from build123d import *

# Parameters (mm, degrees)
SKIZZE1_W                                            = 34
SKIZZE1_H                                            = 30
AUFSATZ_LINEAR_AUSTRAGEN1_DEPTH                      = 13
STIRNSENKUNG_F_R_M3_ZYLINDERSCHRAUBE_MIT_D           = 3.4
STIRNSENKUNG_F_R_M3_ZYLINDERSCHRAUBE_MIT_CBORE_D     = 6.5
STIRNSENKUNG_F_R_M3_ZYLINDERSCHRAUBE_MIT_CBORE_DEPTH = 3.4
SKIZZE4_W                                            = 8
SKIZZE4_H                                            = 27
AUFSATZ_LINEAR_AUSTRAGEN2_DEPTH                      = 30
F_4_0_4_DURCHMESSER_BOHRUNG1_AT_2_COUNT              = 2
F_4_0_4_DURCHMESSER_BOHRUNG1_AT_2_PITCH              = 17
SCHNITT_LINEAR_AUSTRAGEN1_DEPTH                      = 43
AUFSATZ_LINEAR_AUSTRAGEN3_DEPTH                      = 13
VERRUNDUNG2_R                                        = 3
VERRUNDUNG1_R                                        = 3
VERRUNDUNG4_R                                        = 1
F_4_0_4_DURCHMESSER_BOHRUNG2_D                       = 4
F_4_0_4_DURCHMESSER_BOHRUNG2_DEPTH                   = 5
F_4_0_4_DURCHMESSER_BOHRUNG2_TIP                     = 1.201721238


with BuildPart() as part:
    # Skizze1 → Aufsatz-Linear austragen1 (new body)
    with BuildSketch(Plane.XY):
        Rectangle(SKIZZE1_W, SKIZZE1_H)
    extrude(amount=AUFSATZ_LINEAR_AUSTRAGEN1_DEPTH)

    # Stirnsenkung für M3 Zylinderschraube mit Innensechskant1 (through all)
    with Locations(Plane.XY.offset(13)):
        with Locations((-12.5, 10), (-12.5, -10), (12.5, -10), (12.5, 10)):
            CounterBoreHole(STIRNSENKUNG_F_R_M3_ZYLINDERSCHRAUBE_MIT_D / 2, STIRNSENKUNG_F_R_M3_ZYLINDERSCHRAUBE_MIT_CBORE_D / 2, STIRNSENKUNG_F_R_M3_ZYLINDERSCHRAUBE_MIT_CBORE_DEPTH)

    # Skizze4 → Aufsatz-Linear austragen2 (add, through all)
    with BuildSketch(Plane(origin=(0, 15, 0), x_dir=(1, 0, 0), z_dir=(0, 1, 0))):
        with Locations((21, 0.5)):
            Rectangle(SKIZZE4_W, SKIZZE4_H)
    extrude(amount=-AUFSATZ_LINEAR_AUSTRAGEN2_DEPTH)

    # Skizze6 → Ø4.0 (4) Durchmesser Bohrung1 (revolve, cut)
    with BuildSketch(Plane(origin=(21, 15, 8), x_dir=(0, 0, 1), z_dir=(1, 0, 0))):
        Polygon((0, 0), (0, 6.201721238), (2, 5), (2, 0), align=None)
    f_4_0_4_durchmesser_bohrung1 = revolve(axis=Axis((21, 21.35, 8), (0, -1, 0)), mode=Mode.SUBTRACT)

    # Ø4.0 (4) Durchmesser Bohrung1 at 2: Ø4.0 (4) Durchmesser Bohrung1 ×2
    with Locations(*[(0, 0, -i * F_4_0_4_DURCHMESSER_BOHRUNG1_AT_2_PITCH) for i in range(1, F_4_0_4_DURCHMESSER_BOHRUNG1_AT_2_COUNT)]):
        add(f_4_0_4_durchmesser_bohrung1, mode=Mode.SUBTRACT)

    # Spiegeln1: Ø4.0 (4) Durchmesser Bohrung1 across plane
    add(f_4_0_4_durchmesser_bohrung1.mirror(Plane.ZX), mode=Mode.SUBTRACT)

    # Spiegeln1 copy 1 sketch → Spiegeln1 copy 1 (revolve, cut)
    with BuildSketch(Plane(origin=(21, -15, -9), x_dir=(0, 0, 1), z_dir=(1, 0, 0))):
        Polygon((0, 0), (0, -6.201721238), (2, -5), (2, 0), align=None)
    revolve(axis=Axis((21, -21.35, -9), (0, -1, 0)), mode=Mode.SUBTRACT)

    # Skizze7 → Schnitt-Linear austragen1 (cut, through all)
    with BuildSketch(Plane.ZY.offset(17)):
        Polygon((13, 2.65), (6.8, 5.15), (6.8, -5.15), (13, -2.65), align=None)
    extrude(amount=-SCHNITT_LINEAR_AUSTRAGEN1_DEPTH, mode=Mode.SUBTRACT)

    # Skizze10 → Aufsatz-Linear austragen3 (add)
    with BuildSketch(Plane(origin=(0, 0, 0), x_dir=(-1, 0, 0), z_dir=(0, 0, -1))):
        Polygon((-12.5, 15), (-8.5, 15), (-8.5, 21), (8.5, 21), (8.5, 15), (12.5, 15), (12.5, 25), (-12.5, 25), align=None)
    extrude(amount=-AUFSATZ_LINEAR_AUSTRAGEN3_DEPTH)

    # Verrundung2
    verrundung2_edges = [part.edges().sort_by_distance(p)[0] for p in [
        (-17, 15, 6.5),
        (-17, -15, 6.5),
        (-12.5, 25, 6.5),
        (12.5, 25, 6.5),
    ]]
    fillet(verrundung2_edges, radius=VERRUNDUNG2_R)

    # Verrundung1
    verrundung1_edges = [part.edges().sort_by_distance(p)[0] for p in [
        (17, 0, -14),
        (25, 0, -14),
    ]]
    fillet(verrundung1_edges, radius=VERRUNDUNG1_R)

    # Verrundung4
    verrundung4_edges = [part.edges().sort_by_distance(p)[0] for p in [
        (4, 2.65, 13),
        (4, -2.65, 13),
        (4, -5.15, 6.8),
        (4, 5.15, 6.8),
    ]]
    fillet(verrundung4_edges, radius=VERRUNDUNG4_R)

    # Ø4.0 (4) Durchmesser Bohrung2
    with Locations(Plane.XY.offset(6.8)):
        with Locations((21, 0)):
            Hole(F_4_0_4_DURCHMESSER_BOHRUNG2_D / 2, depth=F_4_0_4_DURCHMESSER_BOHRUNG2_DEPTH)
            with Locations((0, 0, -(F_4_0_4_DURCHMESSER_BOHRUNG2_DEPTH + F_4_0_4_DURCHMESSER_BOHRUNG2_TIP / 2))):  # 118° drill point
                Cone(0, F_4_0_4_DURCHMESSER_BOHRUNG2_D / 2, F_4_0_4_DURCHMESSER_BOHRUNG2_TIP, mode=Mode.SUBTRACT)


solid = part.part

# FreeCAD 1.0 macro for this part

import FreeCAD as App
import Part
import Sketcher
Q = App.Units.Quantity


def edges_at(feature, points):
    """Names of the edges that pass closest to the given points."""
    edges = feature.Shape.Edges
    near = lambda p: min(range(len(edges)), key=lambda i: edges[i].distToShape(Part.Vertex(*p))[0])
    return sorted({f"Edge{near(p) + 1}" for p in points})

doc = App.newDocument("Part")
params = doc.addObject("Spreadsheet::Sheet", "Params")
for row, (alias, value) in enumerate([
    ("sketch1_width", "34 mm"),
    ("sketch1_height", "30 mm"),
    ("pad1_length", "13 mm"),
    ("sketch2_diameter", "3.4 mm"),
    ("hole_diameter", "3.4 mm"),
    ("hole_cbore_diameter", "6.5 mm"),
    ("hole_cbore_depth", "3.4 mm"),
    ("sketch3_width", "8 mm"),
    ("sketch3_height", "27 mm"),
    ("pad2_length", "30 mm"),
    ("sketch4_width", "5 mm"),
    ("sketch4_height", "2 mm"),
    ("groove_angle", "360 deg"),
    ("linearpattern_pitch", "17 mm"),
    ("sketch5_width", "5 mm"),
    ("sketch5_height", "2 mm"),
    ("groove2_angle", "360 deg"),
    ("sketch6_width", "10.3 mm"),
    ("sketch6_width2", "5.3 mm"),
    ("sketch7_width", "4 mm"),
    ("sketch7_width2", "17 mm"),
    ("sketch7_height", "6 mm"),
    ("sketch7_height2", "10 mm"),
    ("pad3_length", "13 mm"),
    ("fillet_radius", "3 mm"),
    ("fillet2_radius", "3 mm"),
    ("fillet3_radius", "1 mm"),
    ("sketch8_diameter", "4 mm"),
    ("hole2_diameter", "4 mm"),
    ("hole2_depth", "5 mm"),
], start=1):
    params.set(f"A{row}", alias)
    params.set(f"B{row}", "=" + value)
    params.setAlias(f"B{row}", alias)

body = doc.addObject("PartDesign::Body", "Body")

# Sketch on XY plane
sketch1 = doc.addObject("Sketcher::SketchObject", "Sketch")
body.addObject(sketch1)
sketch1.AttachmentSupport = (doc.XY_Plane, [""])
sketch1.MapMode = "FlatFace"
sketch1.addGeometry(Part.LineSegment(App.Vector(-17, 15, 0), App.Vector(-17, -15, 0)), False)
sketch1.addGeometry(Part.LineSegment(App.Vector(-17, -15, 0), App.Vector(17, -15, 0)), False)
sketch1.addGeometry(Part.LineSegment(App.Vector(17, -15, 0), App.Vector(17, 15, 0)), False)
sketch1.addGeometry(Part.LineSegment(App.Vector(17, 15, 0), App.Vector(-17, 15, 0)), False)
sketch1.addConstraint(Sketcher.Constraint("Coincident", 0, 2, 1, 1))
sketch1.addConstraint(Sketcher.Constraint("Coincident", 1, 2, 2, 1))
sketch1.addConstraint(Sketcher.Constraint("Coincident", 2, 2, 3, 1))
sketch1.addConstraint(Sketcher.Constraint("Coincident", 3, 2, 0, 1))
sketch1.addConstraint(Sketcher.Constraint("Vertical", 0))
sketch1.addConstraint(Sketcher.Constraint("Horizontal", 1))
sketch1.addConstraint(Sketcher.Constraint("Vertical", 2))
sketch1.addConstraint(Sketcher.Constraint("Horizontal", 3))
sketch1.addConstraint(Sketcher.Constraint("Symmetric", 0, 2, 2, 2, -1, 1))
sketch1.addConstraint(Sketcher.Constraint("DistanceX", 1, 1, 1, 2, Q("34 mm")))
sketch1.addConstraint(Sketcher.Constraint("DistanceY", 0, 2, 0, 1, Q("30 mm")))
sketch1.setExpression("Constraints[9]", "Params.sketch1_width")
sketch1.setExpression("Constraints[10]", "Params.sketch1_height")
pad1 = doc.addObject("PartDesign::Pad", "Pad")
body.addObject(pad1)
pad1.Profile = sketch1
pad1.setExpression("Length", "Params.pad1_length")

# Sketch on XY plane
sketch2 = doc.addObject("Sketcher::SketchObject", "Sketch001")
body.addObject(sketch2)
sketch2.AttachmentSupport = (doc.XY_Plane, [""])
sketch2.MapMode = "FlatFace"
sketch2.AttachmentOffset = App.Placement(App.Vector(0, 0, 13), App.Rotation())
sketch2.addGeometry(Part.Circle(App.Vector(-12.5, 10, 0), App.Vector(0, 0, 1), 1.7), False)
sketch2.addGeometry(Part.Circle(App.Vector(-12.5, -10, 0), App.Vector(0, 0, 1), 1.7), False)
sketch2.addGeometry(Part.Circle(App.Vector(12.5, -10, 0), App.Vector(0, 0, 1), 1.7), False)
sketch2.addGeometry(Part.Circle(App.Vector(12.5, 10, 0), App.Vector(0, 0, 1), 1.7), False)
sketch2.addConstraint(Sketcher.Constraint("Equal", 0, 1))
sketch2.addConstraint(Sketcher.Constraint("Equal", 1, 2))
sketch2.addConstraint(Sketcher.Constraint("Equal", 2, 3))
sketch2.addConstraint(Sketcher.Constraint("Symmetric", 0, 3, 2, 3, -1, 1))
sketch2.addConstraint(Sketcher.Constraint("Symmetric", 1, 3, 3, 3, -1, 1))
sketch2.addConstraint(Sketcher.Constraint("Symmetric", 1, 3, 2, 3, -2))
sketch2.addConstraint(Sketcher.Constraint("Diameter", 0, Q("3.4 mm")))
sketch2.addConstraint(Sketcher.Constraint("DistanceY", -1, 1, 0, 3, Q("10 mm")))
sketch2.addConstraint(Sketcher.Constraint("DistanceX", 1, 3, 2, 3, Q("25 mm")))
sketch2.setExpression("Constraints[6]", "Params.sketch2_diameter")
doc.recompute()
hole = doc.addObject("PartDesign::Hole", "Hole")
body.addObject(hole)
hole.Profile = sketch2
hole.ThreadType = "None"
hole.setExpression("Diameter", "Params.hole_diameter")
hole.DepthType = "ThroughAll"
hole.HoleCutType = "Counterbore"
hole.setExpression("HoleCutDiameter", "Params.hole_cbore_diameter")
hole.setExpression("HoleCutDepth", "Params.hole_cbore_depth")

# Sketch on XZ plane
sketch3 = doc.addObject("Sketcher::SketchObject", "Sketch002")
body.addObject(sketch3)
sketch3.AttachmentSupport = (doc.XZ_Plane, [""])
sketch3.MapMode = "FlatFace"
sketch3.AttachmentOffset = App.Placement(App.Vector(0, 0, -15), App.Rotation())
sketch3.addGeometry(Part.LineSegment(App.Vector(17, -14, 0), App.Vector(17, 13, 0)), False)
sketch3.addGeometry(Part.LineSegment(App.Vector(17, 13, 0), App.Vector(25, 13, 0)), False)
sketch3.addGeometry(Part.LineSegment(App.Vector(25, 13, 0), App.Vector(25, -14, 0)), False)
sketch3.addGeometry(Part.LineSegment(App.Vector(25, -14, 0), App.Vector(17, -14, 0)), False)
sketch3.addConstraint(Sketcher.Constraint("Coincident", 0, 2, 1, 1))
sketch3.addConstraint(Sketcher.Constraint("Coincident", 1, 2, 2, 1))
sketch3.addConstraint(Sketcher.Constraint("Coincident", 2, 2, 3, 1))
sketch3.addConstraint(Sketcher.Constraint("Coincident", 3, 2, 0, 1))
sketch3.addConstraint(Sketcher.Constraint("Vertical", 0))
sketch3.addConstraint(Sketcher.Constraint("Horizontal", 1))
sketch3.addConstraint(Sketcher.Constraint("Vertical", 2))
sketch3.addConstraint(Sketcher.Constraint("Horizontal", 3))
sketch3.addConstraint(Sketcher.Constraint("DistanceX", 1, 1, 1, 2, Q("8 mm")))
sketch3.addConstraint(Sketcher.Constraint("DistanceY", 0, 1, 0, 2, Q("27 mm")))
sketch3.addConstraint(Sketcher.Constraint("DistanceX", -1, 1, 0, 2, Q("17 mm")))
sketch3.addConstraint(Sketcher.Constraint("DistanceY", -1, 1, 0, 2, Q("13 mm")))
sketch3.setExpression("Constraints[8]", "Params.sketch3_width")
sketch3.setExpression("Constraints[9]", "Params.sketch3_height")
pad2 = doc.addObject("PartDesign::Pad", "Pad001")
body.addObject(pad2)
pad2.Profile = sketch3
pad2.setExpression("Length", "Params.pad2_length")

# Sketch on YZ plane
sketch4 = doc.addObject("Sketcher::SketchObject", "Sketch003")
body.addObject(sketch4)
sketch4.AttachmentSupport = (doc.YZ_Plane, [""])
sketch4.MapMode = "FlatFace"
sketch4.AttachmentOffset = App.Placement(App.Vector(0, 0, 21), App.Rotation())
sketch4.addGeometry(Part.LineSegment(App.Vector(8.798279, 8, 0), App.Vector(15, 8, 0)), False)
sketch4.addGeometry(Part.LineSegment(App.Vector(15, 8, 0), App.Vector(15, 10, 0)), False)
sketch4.addGeometry(Part.LineSegment(App.Vector(15, 10, 0), App.Vector(10, 10, 0)), False)
sketch4.addGeometry(Part.LineSegment(App.Vector(10, 10, 0), App.Vector(8.798279, 8, 0)), False)
sketch4.addGeometry(Part.LineSegment(App.Vector(15, 8, 0), App.Vector(8.798279, 8, 0)), True)  # axis
sketch4.addConstraint(Sketcher.Constraint("Coincident", 0, 2, 1, 1))
sketch4.addConstraint(Sketcher.Constraint("Coincident", 1, 2, 2, 1))
sketch4.addConstraint(Sketcher.Constraint("Coincident", 2, 2, 3, 1))
sketch4.addConstraint(Sketcher.Constraint("Coincident", 3, 2, 0, 1))
sketch4.addConstraint(Sketcher.Constraint("Horizontal", 0))
sketch4.addConstraint(Sketcher.Constraint("Vertical", 1))
sketch4.addConstraint(Sketcher.Constraint("Horizontal", 2))
sketch4.addConstraint(Sketcher.Constraint("Horizontal", 4))
sketch4.addConstraint(Sketcher.Constraint("Coincident", 4, 1, 0, 2))
sketch4.addConstraint(Sketcher.Constraint("Equal", 0, 4))
sketch4.addConstraint(Sketcher.Constraint("DistanceX", 2, 2, 2, 1, Q("5 mm")))
sketch4.addConstraint(Sketcher.Constraint("DistanceY", 1, 1, 1, 2, Q("2 mm")))
sketch4.addConstraint(Sketcher.Constraint("Angle", 3, Q("-121 deg")))
sketch4.addConstraint(Sketcher.Constraint("DistanceX", -1, 1, 0, 2, Q("15 mm")))
sketch4.addConstraint(Sketcher.Constraint("DistanceY", -1, 1, 0, 2, Q("8 mm")))
sketch4.setExpression("Constraints[10]", "Params.sketch4_width")
sketch4.setExpression("Constraints[11]", "Params.sketch4_height")
groove = doc.addObject("PartDesign::Groove", "Groove")
body.addObject(groove)
groove.Profile = sketch4
groove.ReferenceAxis = (sketch4, ["Axis0"])
groove.setExpression("Angle", "Params.groove_angle")
doc.recompute()

linearpattern = doc.addObject("PartDesign::LinearPattern", "LinearPattern")
body.addObject(linearpattern)
linearpattern.Originals = [groove]
linearpattern.Direction = (doc.Z_Axis, [""])
linearpattern.Mode = "offset"
linearpattern.setExpression("Offset", "Params.linearpattern_pitch")
linearpattern.Occurrences = 2
linearpattern.Reversed = True
body.Tip = linearpattern
doc.recompute()

mirrored = doc.addObject("PartDesign::Mirrored", "Mirrored")
body.addObject(mirrored)
mirrored.Originals = [groove]
mirrored.MirrorPlane = (doc.XZ_Plane, [""])
body.Tip = mirrored

# Sketch on YZ plane
sketch5 = doc.addObject("Sketcher::SketchObject", "Sketch004")
body.addObject(sketch5)
sketch5.AttachmentSupport = (doc.YZ_Plane, [""])
sketch5.MapMode = "FlatFace"
sketch5.AttachmentOffset = App.Placement(App.Vector(0, 0, 21), App.Rotation())
sketch5.addGeometry(Part.LineSegment(App.Vector(-15, -9, 0), App.Vector(-8.798279, -9, 0)), False)
sketch5.addGeometry(Part.LineSegment(App.Vector(-8.798279, -9, 0), App.Vector(-10, -7, 0)), False)
sketch5.addGeometry(Part.LineSegment(App.Vector(-10, -7, 0), App.Vector(-15, -7, 0)), False)
sketch5.addGeometry(Part.LineSegment(App.Vector(-15, -7, 0), App.Vector(-15, -9, 0)), False)
sketch5.addGeometry(Part.LineSegment(App.Vector(-8.798279, -9, 0), App.Vector(-15, -9, 0)), True)  # axis
sketch5.addConstraint(Sketcher.Constraint("Coincident", 0, 2, 1, 1))
sketch5.addConstraint(Sketcher.Constraint("Coincident", 1, 2, 2, 1))
sketch5.addConstraint(Sketcher.Constraint("Coincident", 2, 2, 3, 1))
sketch5.addConstraint(Sketcher.Constraint("Coincident", 3, 2, 0, 1))
sketch5.addConstraint(Sketcher.Constraint("Horizontal", 0))
sketch5.addConstraint(Sketcher.Constraint("Horizontal", 2))
sketch5.addConstraint(Sketcher.Constraint("Vertical", 3))
sketch5.addConstraint(Sketcher.Constraint("Horizontal", 4))
sketch5.addConstraint(Sketcher.Constraint("Coincident", 4, 1, 0, 2))
sketch5.addConstraint(Sketcher.Constraint("Vertical", 2, 2, 4, 2))
sketch5.addConstraint(Sketcher.Constraint("DistanceX", 2, 2, 2, 1, Q("5 mm")))
sketch5.addConstraint(Sketcher.Constraint("DistanceY", 3, 2, 3, 1, Q("2 mm")))
sketch5.addConstraint(Sketcher.Constraint("Angle", 1, Q("121 deg")))
sketch5.addConstraint(Sketcher.Constraint("DistanceY", 0, 2, -1, 1, Q("9 mm")))
sketch5.addConstraint(Sketcher.Constraint("DistanceX", 1, 2, -1, 1, Q("10 mm")))
sketch5.setExpression("Constraints[10]", "Params.sketch5_width")
sketch5.setExpression("Constraints[11]", "Params.sketch5_height")
groove2 = doc.addObject("PartDesign::Groove", "Groove001")
body.addObject(groove2)
groove2.Profile = sketch5
groove2.ReferenceAxis = (sketch5, ["Axis0"])
groove2.setExpression("Angle", "Params.groove2_angle")

# Sketch on YZ plane
sketch6 = doc.addObject("Sketcher::SketchObject", "Sketch005")
body.addObject(sketch6)
sketch6.AttachmentSupport = (doc.YZ_Plane, [""])
sketch6.MapMode = "FlatFace"
sketch6.AttachmentOffset = App.Placement(App.Vector(0, 0, -17), App.Rotation())
sketch6.addGeometry(Part.LineSegment(App.Vector(2.65, 13, 0), App.Vector(5.15, 6.8, 0)), False)
sketch6.addGeometry(Part.LineSegment(App.Vector(5.15, 6.8, 0), App.Vector(-5.15, 6.8, 0)), False)
sketch6.addGeometry(Part.LineSegment(App.Vector(-5.15, 6.8, 0), App.Vector(-2.65, 13, 0)), False)
sketch6.addGeometry(Part.LineSegment(App.Vector(-2.65, 13, 0), App.Vector(2.65, 13, 0)), False)
sketch6.addConstraint(Sketcher.Constraint("Coincident", 0, 2, 1, 1))
sketch6.addConstraint(Sketcher.Constraint("Coincident", 1, 2, 2, 1))
sketch6.addConstraint(Sketcher.Constraint("Coincident", 2, 2, 3, 1))
sketch6.addConstraint(Sketcher.Constraint("Coincident", 3, 2, 0, 1))
sketch6.addConstraint(Sketcher.Constraint("Horizontal", 1))
sketch6.addConstraint(Sketcher.Constraint("Horizontal", 3))
sketch6.addConstraint(Sketcher.Constraint("Equal", 0, 2))
sketch6.addConstraint(Sketcher.Constraint("DistanceX", 1, 2, 1, 1, Q("10.3 mm")))
sketch6.addConstraint(Sketcher.Constraint("DistanceX", 3, 1, 3, 2, Q("5.3 mm")))
sketch6.addConstraint(Sketcher.Constraint("DistanceY", -1, 1, 2, 2, Q("13 mm")))
sketch6.addConstraint(Sketcher.Constraint("DistanceY", -1, 1, 0, 2, Q("6.8 mm")))
sketch6.addConstraint(Sketcher.Constraint("DistanceX", -1, 1, 0, 2, Q("5.15 mm")))
sketch6.setExpression("Constraints[7]", "Params.sketch6_width")
sketch6.setExpression("Constraints[8]", "Params.sketch6_width2")
pocket1 = doc.addObject("PartDesign::Pocket", "Pocket")
body.addObject(pocket1)
pocket1.Profile = sketch6
pocket1.Type = "ThroughAll"
pocket1.Reversed = True

# Sketch on XY plane
sketch7 = doc.addObject("Sketcher::SketchObject", "Sketch006")
body.addObject(sketch7)
sketch7.AttachmentSupport = (doc.XY_Plane, [""])
sketch7.MapMode = "FlatFace"
sketch7.addGeometry(Part.LineSegment(App.Vector(12.5, 15, 0), App.Vector(8.5, 15, 0)), False)
sketch7.addGeometry(Part.LineSegment(App.Vector(8.5, 15, 0), App.Vector(8.5, 21, 0)), False)
sketch7.addGeometry(Part.LineSegment(App.Vector(8.5, 21, 0), App.Vector(-8.5, 21, 0)), False)
sketch7.addGeometry(Part.LineSegment(App.Vector(-8.5, 21, 0), App.Vector(-8.5, 15, 0)), False)
sketch7.addGeometry(Part.LineSegment(App.Vector(-8.5, 15, 0), App.Vector(-12.5, 15, 0)), False)
sketch7.addGeometry(Part.LineSegment(App.Vector(-12.5, 15, 0), App.Vector(-12.5, 25, 0)), False)
sketch7.addGeometry(Part.LineSegment(App.Vector(-12.5, 25, 0), App.Vector(12.5, 25, 0)), False)
sketch7.addGeometry(Part.LineSegment(App.Vector(12.5, 25, 0), App.Vector(12.5, 15, 0)), False)
sketch7.addConstraint(Sketcher.Constraint("Coincident", 0, 2, 1, 1))
sketch7.addConstraint(Sketcher.Constraint("Coincident", 1, 2, 2, 1))
sketch7.addConstraint(Sketcher.Constraint("Coincident", 2, 2, 3, 1))
sketch7.addConstraint(Sketcher.Constraint("Coincident", 3, 2, 4, 1))
sketch7.addConstraint(Sketcher.Constraint("Coincident", 4, 2, 5, 1))
sketch7.addConstraint(Sketcher.Constraint("Coincident", 5, 2, 6, 1))
sketch7.addConstraint(Sketcher.Constraint("Coincident", 6, 2, 7, 1))
sketch7.addConstraint(Sketcher.Constraint("Coincident", 7, 2, 0, 1))
sketch7.addConstraint(Sketcher.Constraint("Horizontal", 0))
sketch7.addConstraint(Sketcher.Constraint("Vertical", 1))
sketch7.addConstraint(Sketcher.Constraint("Horizontal", 2))
sketch7.addConstraint(Sketcher.Constraint("Vertical", 3))
sketch7.addConstraint(Sketcher.Constraint("Horizontal", 4))
sketch7.addConstraint(Sketcher.Constraint("Vertical", 5))
sketch7.addConstraint(Sketcher.Constraint("Horizontal", 6))
sketch7.addConstraint(Sketcher.Constraint("Vertical", 7))
sketch7.addConstraint(Sketcher.Constraint("Symmetric", 0, 2, 3, 2, -2))
sketch7.addConstraint(Sketcher.Constraint("Equal", 0, 4))
sketch7.addConstraint(Sketcher.Constraint("DistanceX", 0, 2, 0, 1, Q("4 mm")))
sketch7.addConstraint(Sketcher.Constraint("DistanceX", 2, 2, 2, 1, Q("17 mm")))
sketch7.addConstraint(Sketcher.Constraint("DistanceY", 1, 1, 1, 2, Q("6 mm")))
sketch7.addConstraint(Sketcher.Constraint("DistanceY", 5, 1, 5, 2, Q("10 mm")))
sketch7.addConstraint(Sketcher.Constraint("DistanceY", -1, 1, 0, 2, Q("15 mm")))
sketch7.setExpression("Constraints[18]", "Params.sketch7_width")
sketch7.setExpression("Constraints[19]", "Params.sketch7_width2")
sketch7.setExpression("Constraints[20]", "Params.sketch7_height")
sketch7.setExpression("Constraints[21]", "Params.sketch7_height2")
pad3 = doc.addObject("PartDesign::Pad", "Pad002")
body.addObject(pad3)
pad3.Profile = sketch7
pad3.setExpression("Length", "Params.pad3_length")
doc.recompute()

fillet = doc.addObject("PartDesign::Fillet", "Fillet")
body.addObject(fillet)
fillet.Base = (pad3, edges_at(pad3, [
    (-17, 15, 6.5),
    (-17, -15, 6.5),
    (-12.5, 25, 6.5),
    (12.5, 25, 6.5),
]))
fillet.setExpression("Radius", "Params.fillet_radius")
doc.recompute()

fillet2 = doc.addObject("PartDesign::Fillet", "Fillet001")
body.addObject(fillet2)
fillet2.Base = (fillet, edges_at(fillet, [(17, 0, -14), (25, 0, -14)]))
fillet2.setExpression("Radius", "Params.fillet2_radius")
doc.recompute()

fillet3 = doc.addObject("PartDesign::Fillet", "Fillet002")
body.addObject(fillet3)
fillet3.Base = (fillet2, edges_at(fillet2, [
    (4, 2.65, 13),
    (4, -2.65, 13),
    (4, -5.15, 6.8),
    (4, 5.15, 6.8),
]))
fillet3.setExpression("Radius", "Params.fillet3_radius")

# Sketch on XY plane
sketch8 = doc.addObject("Sketcher::SketchObject", "Sketch007")
body.addObject(sketch8)
sketch8.AttachmentSupport = (doc.XY_Plane, [""])
sketch8.MapMode = "FlatFace"
sketch8.AttachmentOffset = App.Placement(App.Vector(0, 0, 6.8), App.Rotation())
sketch8.addGeometry(Part.Circle(App.Vector(21, 0, 0), App.Vector(0, 0, 1), 2), False)
sketch8.addConstraint(Sketcher.Constraint("PointOnObject", 0, 3, -1))
sketch8.addConstraint(Sketcher.Constraint("Diameter", 0, Q("4 mm")))
sketch8.addConstraint(Sketcher.Constraint("DistanceX", -1, 1, 0, 3, Q("21 mm")))
sketch8.setExpression("Constraints[1]", "Params.sketch8_diameter")
doc.recompute()
hole2 = doc.addObject("PartDesign::Hole", "Hole001")
body.addObject(hole2)
hole2.Profile = sketch8
hole2.ThreadType = "None"
hole2.setExpression("Diameter", "Params.hole2_diameter")
hole2.DepthType = "Dimension"
hole2.setExpression("Depth", "Params.hole2_depth")
hole2.DrillPoint = "Angled"
hole2.DrillPointAngle = 118

doc.recompute()
